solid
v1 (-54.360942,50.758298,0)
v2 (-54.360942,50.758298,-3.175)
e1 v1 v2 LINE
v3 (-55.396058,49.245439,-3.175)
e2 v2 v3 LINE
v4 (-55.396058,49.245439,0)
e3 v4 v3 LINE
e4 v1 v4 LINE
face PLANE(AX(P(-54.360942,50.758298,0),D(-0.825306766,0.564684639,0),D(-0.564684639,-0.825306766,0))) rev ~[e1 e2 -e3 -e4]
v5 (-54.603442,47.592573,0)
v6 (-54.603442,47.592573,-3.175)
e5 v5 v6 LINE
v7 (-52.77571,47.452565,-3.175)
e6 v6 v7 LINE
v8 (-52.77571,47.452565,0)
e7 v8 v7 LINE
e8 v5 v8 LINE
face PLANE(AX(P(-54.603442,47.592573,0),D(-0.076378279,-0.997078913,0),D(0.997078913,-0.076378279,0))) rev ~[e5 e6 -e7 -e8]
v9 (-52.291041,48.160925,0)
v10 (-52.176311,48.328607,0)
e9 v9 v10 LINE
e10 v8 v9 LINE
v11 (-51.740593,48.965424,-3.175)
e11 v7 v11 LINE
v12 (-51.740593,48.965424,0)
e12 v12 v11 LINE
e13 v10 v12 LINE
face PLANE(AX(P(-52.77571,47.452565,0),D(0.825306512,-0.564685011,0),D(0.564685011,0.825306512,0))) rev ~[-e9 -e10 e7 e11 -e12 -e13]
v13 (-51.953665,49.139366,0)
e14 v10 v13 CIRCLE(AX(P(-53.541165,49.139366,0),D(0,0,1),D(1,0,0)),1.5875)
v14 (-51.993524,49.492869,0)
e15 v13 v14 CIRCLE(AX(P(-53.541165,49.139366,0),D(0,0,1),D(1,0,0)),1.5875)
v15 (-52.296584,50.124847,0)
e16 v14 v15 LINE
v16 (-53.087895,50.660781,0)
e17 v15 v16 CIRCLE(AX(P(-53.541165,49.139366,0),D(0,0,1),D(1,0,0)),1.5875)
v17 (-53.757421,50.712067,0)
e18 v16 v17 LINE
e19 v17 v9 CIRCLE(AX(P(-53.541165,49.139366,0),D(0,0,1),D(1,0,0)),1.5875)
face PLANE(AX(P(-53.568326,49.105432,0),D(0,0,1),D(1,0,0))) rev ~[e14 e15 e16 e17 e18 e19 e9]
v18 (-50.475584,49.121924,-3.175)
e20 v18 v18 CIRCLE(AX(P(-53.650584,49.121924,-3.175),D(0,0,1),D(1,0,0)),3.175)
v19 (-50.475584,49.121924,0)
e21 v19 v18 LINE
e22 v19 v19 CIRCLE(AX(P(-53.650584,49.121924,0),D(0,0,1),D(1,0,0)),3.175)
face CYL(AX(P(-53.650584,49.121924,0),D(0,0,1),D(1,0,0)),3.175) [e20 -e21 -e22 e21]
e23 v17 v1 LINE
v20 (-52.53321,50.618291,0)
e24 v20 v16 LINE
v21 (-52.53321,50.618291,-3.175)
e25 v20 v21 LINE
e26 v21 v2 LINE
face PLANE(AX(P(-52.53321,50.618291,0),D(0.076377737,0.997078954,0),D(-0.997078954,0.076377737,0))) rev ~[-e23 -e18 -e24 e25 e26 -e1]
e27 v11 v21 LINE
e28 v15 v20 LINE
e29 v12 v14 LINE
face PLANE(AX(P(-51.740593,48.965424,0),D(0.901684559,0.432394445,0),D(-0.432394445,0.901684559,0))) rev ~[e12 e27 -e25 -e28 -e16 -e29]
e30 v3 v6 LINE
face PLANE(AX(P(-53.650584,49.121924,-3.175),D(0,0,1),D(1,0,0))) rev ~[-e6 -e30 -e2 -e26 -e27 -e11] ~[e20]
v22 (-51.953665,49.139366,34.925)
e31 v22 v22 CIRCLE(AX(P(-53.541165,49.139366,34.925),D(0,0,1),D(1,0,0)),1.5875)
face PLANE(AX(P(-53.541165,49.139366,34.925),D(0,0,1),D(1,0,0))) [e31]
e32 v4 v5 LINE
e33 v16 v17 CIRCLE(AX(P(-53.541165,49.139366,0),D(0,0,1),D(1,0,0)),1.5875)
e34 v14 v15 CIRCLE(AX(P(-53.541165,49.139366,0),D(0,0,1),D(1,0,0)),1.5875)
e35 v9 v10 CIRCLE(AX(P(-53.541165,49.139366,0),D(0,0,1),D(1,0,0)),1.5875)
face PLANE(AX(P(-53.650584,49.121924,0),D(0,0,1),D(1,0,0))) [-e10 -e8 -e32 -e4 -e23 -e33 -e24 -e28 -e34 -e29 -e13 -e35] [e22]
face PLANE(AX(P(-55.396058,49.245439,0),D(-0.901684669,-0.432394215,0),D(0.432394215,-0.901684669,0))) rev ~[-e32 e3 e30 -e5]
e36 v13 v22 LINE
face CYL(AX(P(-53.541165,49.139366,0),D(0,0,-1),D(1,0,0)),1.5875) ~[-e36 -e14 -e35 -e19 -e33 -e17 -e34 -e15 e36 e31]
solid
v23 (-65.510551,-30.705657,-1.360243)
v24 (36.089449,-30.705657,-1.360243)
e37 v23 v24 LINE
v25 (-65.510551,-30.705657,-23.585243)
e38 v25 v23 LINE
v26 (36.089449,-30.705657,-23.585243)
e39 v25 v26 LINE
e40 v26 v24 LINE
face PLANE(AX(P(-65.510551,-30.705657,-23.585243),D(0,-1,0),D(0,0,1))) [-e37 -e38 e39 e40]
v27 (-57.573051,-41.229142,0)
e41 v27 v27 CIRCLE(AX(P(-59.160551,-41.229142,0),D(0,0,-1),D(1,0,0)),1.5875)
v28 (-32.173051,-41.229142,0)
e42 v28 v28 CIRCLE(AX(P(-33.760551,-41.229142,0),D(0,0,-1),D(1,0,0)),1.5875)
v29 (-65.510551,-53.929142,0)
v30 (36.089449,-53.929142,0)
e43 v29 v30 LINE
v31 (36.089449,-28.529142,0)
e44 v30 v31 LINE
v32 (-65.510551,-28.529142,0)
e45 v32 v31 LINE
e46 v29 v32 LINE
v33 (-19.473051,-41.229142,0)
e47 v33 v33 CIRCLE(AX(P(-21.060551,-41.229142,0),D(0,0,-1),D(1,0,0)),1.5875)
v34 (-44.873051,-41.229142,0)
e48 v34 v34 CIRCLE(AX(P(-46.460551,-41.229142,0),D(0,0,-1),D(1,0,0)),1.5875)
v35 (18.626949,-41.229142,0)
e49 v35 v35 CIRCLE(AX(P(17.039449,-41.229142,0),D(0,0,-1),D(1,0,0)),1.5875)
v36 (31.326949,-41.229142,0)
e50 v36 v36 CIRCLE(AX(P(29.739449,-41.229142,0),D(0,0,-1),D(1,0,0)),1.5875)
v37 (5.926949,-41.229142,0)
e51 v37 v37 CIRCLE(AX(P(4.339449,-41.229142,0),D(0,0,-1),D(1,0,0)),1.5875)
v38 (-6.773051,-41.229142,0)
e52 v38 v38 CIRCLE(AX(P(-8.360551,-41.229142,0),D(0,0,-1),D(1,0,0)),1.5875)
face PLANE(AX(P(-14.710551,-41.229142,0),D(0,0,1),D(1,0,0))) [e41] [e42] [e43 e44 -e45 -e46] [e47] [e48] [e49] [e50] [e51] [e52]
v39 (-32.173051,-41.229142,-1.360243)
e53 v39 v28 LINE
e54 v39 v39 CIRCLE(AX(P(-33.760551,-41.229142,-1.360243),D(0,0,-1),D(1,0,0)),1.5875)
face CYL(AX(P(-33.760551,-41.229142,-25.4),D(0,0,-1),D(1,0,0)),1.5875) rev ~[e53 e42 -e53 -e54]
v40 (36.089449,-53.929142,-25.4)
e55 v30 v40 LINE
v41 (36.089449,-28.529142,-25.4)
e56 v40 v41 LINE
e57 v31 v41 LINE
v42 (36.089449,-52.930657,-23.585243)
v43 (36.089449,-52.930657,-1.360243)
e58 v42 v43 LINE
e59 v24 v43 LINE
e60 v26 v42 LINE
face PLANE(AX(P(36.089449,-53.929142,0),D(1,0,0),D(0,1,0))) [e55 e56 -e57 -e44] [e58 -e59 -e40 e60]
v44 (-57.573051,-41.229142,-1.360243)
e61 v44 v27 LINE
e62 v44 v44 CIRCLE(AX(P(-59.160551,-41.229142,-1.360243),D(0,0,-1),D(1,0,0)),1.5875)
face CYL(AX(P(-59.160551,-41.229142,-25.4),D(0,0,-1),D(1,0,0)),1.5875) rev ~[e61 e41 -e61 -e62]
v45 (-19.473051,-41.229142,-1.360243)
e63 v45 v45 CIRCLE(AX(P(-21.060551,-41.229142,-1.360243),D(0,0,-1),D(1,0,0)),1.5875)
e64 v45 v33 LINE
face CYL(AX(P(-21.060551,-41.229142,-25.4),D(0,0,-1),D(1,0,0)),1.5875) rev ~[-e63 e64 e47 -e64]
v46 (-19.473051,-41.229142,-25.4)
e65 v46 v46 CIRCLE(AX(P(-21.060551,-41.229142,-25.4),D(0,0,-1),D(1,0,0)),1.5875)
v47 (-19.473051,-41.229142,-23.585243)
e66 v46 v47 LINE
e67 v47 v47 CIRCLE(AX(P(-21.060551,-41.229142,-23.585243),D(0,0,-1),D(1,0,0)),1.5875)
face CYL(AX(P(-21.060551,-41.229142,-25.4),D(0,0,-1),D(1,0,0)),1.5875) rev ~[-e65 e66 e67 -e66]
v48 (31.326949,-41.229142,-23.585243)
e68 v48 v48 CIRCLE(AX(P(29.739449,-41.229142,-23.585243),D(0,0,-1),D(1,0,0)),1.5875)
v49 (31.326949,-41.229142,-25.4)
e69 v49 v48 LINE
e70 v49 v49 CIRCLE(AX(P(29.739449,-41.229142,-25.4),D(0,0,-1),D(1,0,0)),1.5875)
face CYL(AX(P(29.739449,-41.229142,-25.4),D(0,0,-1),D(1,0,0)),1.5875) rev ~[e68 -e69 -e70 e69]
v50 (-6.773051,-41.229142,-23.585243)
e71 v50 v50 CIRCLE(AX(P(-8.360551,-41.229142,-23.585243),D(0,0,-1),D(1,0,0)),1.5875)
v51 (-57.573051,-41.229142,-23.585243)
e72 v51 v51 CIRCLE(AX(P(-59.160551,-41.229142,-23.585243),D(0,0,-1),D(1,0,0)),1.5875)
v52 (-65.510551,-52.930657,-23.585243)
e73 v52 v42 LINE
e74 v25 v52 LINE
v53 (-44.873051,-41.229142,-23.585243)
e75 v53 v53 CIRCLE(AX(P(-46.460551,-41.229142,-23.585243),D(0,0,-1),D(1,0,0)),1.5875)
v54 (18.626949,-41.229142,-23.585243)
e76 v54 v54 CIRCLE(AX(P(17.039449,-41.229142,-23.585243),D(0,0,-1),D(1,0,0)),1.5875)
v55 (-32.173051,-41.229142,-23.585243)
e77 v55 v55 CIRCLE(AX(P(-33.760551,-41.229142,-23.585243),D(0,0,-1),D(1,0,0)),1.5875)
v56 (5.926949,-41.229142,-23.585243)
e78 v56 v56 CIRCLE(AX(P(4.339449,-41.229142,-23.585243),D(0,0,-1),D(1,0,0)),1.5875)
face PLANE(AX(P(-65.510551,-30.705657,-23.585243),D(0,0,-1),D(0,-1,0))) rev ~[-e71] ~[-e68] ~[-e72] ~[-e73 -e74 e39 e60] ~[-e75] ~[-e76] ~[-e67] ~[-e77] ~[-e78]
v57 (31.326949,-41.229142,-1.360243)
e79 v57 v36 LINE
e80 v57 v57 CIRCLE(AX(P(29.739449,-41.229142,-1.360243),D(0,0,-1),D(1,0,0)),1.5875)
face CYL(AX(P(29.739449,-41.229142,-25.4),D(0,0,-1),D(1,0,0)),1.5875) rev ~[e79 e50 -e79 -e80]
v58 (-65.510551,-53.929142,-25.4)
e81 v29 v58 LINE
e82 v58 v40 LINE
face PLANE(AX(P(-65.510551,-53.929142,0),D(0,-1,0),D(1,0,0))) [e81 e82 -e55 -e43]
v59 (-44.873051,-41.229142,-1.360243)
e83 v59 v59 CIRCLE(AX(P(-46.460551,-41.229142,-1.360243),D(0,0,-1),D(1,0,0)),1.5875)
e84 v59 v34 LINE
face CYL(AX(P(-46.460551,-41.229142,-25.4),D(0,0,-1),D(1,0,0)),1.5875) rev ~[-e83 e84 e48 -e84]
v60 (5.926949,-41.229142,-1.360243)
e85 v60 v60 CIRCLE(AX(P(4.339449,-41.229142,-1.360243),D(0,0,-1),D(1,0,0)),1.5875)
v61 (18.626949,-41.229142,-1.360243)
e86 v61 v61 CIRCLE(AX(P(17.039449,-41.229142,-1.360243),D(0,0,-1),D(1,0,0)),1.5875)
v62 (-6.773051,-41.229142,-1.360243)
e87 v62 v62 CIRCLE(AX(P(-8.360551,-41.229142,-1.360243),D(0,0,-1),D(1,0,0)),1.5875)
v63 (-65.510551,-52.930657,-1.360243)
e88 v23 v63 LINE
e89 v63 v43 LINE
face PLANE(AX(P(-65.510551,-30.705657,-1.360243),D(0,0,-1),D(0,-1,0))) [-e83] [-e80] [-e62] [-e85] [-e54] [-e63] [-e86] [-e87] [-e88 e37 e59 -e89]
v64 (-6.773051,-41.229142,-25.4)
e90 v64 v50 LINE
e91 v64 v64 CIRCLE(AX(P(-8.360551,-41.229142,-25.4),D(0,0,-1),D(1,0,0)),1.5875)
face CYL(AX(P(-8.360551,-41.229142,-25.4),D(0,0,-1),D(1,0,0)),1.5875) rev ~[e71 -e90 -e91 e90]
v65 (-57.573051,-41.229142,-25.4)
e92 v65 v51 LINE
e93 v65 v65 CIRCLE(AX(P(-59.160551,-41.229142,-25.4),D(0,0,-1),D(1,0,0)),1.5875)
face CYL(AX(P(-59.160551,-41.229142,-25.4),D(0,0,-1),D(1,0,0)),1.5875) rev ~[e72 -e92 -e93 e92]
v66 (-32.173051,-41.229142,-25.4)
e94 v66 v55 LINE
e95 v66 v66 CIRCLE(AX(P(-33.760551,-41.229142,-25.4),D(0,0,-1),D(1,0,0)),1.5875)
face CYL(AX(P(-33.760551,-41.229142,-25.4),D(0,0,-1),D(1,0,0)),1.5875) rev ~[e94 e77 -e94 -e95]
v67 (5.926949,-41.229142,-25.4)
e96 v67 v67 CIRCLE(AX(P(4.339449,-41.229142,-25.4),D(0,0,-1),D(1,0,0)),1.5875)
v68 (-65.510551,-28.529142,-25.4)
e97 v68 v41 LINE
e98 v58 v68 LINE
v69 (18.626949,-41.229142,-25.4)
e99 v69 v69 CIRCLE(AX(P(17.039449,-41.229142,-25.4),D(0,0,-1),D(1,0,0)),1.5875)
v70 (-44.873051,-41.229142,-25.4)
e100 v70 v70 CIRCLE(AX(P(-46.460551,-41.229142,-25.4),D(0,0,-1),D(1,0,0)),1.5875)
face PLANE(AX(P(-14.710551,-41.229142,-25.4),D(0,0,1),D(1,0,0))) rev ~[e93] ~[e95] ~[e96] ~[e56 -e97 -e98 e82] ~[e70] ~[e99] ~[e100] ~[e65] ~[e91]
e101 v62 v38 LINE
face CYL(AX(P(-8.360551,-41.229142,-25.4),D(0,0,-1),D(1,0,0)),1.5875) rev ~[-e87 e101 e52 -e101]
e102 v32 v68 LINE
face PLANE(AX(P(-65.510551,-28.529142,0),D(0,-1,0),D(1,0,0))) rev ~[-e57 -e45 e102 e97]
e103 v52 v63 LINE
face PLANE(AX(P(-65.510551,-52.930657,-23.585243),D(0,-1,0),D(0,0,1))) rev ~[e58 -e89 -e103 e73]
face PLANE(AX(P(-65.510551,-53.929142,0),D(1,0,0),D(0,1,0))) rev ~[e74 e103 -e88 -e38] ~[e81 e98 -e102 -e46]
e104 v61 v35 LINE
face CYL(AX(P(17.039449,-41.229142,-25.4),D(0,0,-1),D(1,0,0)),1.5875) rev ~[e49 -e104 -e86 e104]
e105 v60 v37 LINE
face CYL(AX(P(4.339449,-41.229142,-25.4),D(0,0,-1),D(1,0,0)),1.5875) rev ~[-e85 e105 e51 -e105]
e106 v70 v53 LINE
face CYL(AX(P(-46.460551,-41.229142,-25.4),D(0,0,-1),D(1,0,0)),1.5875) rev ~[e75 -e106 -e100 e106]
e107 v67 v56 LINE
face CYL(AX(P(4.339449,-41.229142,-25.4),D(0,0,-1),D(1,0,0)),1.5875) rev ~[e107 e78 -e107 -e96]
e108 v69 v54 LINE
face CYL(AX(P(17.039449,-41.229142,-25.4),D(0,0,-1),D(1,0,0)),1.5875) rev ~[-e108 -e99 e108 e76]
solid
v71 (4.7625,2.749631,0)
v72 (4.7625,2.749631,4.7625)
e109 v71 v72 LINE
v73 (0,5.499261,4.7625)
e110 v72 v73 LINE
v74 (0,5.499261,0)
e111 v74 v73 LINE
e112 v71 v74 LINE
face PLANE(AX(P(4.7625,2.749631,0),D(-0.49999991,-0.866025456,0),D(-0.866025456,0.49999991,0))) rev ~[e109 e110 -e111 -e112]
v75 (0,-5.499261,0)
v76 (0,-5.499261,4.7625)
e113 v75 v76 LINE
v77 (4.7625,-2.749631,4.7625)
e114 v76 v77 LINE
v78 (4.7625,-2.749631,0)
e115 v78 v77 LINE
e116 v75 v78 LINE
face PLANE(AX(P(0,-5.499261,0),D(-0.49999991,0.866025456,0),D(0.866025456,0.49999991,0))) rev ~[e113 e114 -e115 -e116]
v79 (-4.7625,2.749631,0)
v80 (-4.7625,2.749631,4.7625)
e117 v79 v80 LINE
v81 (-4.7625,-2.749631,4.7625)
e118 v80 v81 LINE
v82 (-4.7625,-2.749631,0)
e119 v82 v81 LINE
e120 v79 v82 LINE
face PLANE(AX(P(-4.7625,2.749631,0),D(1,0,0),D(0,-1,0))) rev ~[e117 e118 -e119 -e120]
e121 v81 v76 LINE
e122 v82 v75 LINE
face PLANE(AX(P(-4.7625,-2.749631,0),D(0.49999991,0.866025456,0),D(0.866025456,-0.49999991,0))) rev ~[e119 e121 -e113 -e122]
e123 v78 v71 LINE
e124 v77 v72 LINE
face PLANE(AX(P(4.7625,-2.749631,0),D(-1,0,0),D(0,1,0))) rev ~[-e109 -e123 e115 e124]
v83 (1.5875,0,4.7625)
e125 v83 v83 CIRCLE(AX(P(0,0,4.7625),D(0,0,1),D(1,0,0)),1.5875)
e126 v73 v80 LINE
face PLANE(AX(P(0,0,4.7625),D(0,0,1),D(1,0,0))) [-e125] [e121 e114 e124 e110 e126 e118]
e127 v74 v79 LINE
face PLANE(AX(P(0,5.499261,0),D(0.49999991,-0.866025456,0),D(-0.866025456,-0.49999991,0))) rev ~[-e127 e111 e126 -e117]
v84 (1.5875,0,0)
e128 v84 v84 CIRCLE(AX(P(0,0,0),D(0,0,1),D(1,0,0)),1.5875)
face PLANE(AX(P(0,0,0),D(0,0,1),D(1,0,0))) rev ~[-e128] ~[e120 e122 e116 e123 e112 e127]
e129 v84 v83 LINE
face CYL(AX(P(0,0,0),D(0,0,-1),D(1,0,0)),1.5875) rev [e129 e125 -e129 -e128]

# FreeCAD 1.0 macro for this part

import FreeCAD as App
import Part
import Sketcher
from FreeCAD import Vector
Q = App.Units.Quantity

doc = App.newDocument("Part")
body = doc.addObject("PartDesign::Body", "Body")

# Sketch on XY plane
sketch1 = doc.addObject("Sketcher::SketchObject", "Sketch")
body.addObject(sketch1)
sketch1.AttachmentSupport = (doc.XY_Plane, [""])
sketch1.MapMode = "FlatFace"
sketch1.addGeometry([
    Part.LineSegment(Vector(-4.8, 2.7, 0), Vector(-4.8, -2.7, 0)),  # 0
    Part.LineSegment(Vector(-4.8, -2.7, 0), Vector(0, -5.5, 0)),  # 1
    Part.LineSegment(Vector(0, -5.5, 0), Vector(4.8, -2.7, 0)),  # 2
    Part.LineSegment(Vector(4.8, -2.7, 0), Vector(4.8, 2.7, 0)),  # 3
    Part.LineSegment(Vector(4.8, 2.7, 0), Vector(0, 5.5, 0)),  # 4
    Part.LineSegment(Vector(0, 5.5, 0), Vector(-4.8, 2.7, 0)),  # 5
    Part.Circle(Vector(0, 0, 0), Vector(0, 0, 1), 1.6),  # 6
], False)
sketch1.addConstraint([
    Sketcher.Constraint("Coincident", 0, 2, 1, 1),
    Sketcher.Constraint("Coincident", 1, 2, 2, 1),
    Sketcher.Constraint("Coincident", 2, 2, 3, 1),
    Sketcher.Constraint("Coincident", 3, 2, 4, 1),
    Sketcher.Constraint("Coincident", 4, 2, 5, 1),
    Sketcher.Constraint("Coincident", 5, 2, 0, 1),
    Sketcher.Constraint("Vertical", 0),
    Sketcher.Constraint("Vertical", 3),
    Sketcher.Constraint("Coincident", 6, 3, -1, 1),
    Sketcher.Constraint("Symmetric", 0, 2, 3, 2, -1, 1),
    Sketcher.Constraint("Symmetric", 1, 2, 4, 2, -1, 1),
    Sketcher.Constraint("PointOnObject", 1, 2, -2),
    Sketcher.Constraint("Parallel", 2, 5),
    Sketcher.Constraint("Horizontal", 0, 2, 2, 2),
    Sketcher.Constraint("Diameter", 6, Q("0.125 in")),
    Sketcher.Constraint("Angle", 1, Q("-29.999994 deg")),
    Sketcher.Constraint("DistanceX", 0, 2, -1, 1, Q("0.1875 in")),
    Sketcher.Constraint("DistanceY", 0, 2, 0, 1, Q("5.499262 mm")),
])
pad1 = doc.addObject("PartDesign::Pad", "Pad")
body.addObject(pad1)
pad1.Profile = sketch1
pad1.Length = Q("0.1875 in")
body2 = doc.addObject("PartDesign::Body", "Body001")

# Sketch on XY plane
sketch2 = doc.addObject("Sketcher::SketchObject", "Sketch001")
body2.addObject(sketch2)
sketch2.AttachmentSupport = (doc.getObject("XY_Plane001"), [""])
sketch2.MapMode = "FlatFace"
sketch2.addGeometry(Part.Circle(Vector(-53.5, 49.1, 0), Vector(0, 0, 1), 1.6), False)
sketch2.addConstraint([
    Sketcher.Constraint("Diameter", 0, Q("0.125 in")),
    Sketcher.Constraint("DistanceX", 0, 3, -1, 1, Q("53.541165 mm")),
    Sketcher.Constraint("DistanceY", -1, 1, 0, 3, Q("49.139366 mm")),
])
pad2 = doc.addObject("PartDesign::Pad", "Pad001")
body2.addObject(pad2)
pad2.Profile = sketch2
pad2.Length = Q("1.375 in")

# Sketch on XY plane
sketch3 = doc.addObject("Sketcher::SketchObject", "Sketch002")
body2.addObject(sketch3)
sketch3.AttachmentSupport = (doc.getObject("XY_Plane001"), [""])
sketch3.MapMode = "FlatFace"
sketch3.addGeometry(Part.Circle(Vector(-53.7, 49.1, 0), Vector(0, 0, 1), 3.2), False)
sketch3.addConstraint([
    Sketcher.Constraint("Diameter", 0, Q("0.25 in")),
    Sketcher.Constraint("DistanceX", 0, 3, -1, 1, Q("53.650584 mm")),
    Sketcher.Constraint("DistanceY", -1, 1, 0, 3, Q("49.121924 mm")),
])
pad3 = doc.addObject("PartDesign::Pad", "Pad002")
body2.addObject(pad3)
pad3.Profile = sketch3
pad3.Length = Q("0.125 in")
pad3.Reversed = True

# Sketch on XY plane
sketch4 = doc.addObject("Sketcher::SketchObject", "Sketch003")
body2.addObject(sketch4)
sketch4.AttachmentSupport = (doc.getObject("XY_Plane001"), [""])
sketch4.MapMode = "FlatFace"
sketch4.addGeometry([
    Part.LineSegment(Vector(-54.4, 50.8, 0), Vector(-55.4, 49.2, 0)),  # 0
    Part.LineSegment(Vector(-55.4, 49.2, 0), Vector(-54.6, 47.6, 0)),  # 1
    Part.LineSegment(Vector(-54.6, 47.6, 0), Vector(-52.8, 47.5, 0)),  # 2
    Part.LineSegment(Vector(-52.8, 47.5, 0), Vector(-51.7, 49, 0)),  # 3
    Part.LineSegment(Vector(-51.7, 49, 0), Vector(-52.5, 50.6, 0)),  # 4
    Part.LineSegment(Vector(-52.5, 50.6, 0), Vector(-54.4, 50.8, 0)),  # 5
], False)
sketch4.addConstraint([
    Sketcher.Constraint("Coincident", 0, 2, 1, 1),
    Sketcher.Constraint("Coincident", 1, 2, 2, 1),
    Sketcher.Constraint("Coincident", 2, 2, 3, 1),
    Sketcher.Constraint("Coincident", 3, 2, 4, 1),
    Sketcher.Constraint("Coincident", 4, 2, 5, 1),
    Sketcher.Constraint("Coincident", 5, 2, 0, 1),
    Sketcher.Constraint("Parallel", 0, 3),
    Sketcher.Constraint("Parallel", 1, 4),
    Sketcher.Constraint("Parallel", 2, 5),
    Sketcher.Constraint("Equal", 0, 1),
    Sketcher.Constraint("Equal", 1, 2),
    Sketcher.Constraint("Equal", 2, 3),
    Sketcher.Constraint("DistanceY", -1, 1, 5, 2, Q("50.758298 mm")),
    Sketcher.Constraint("DistanceX", 2, 2, 4, 2, Q("0.2425 mm")),
    Sketcher.Constraint("DistanceY", -1, 1, 0, 2, Q("49.245439 mm")),
    Sketcher.Constraint("DistanceX", 2, 2, -1, 1, Q("52.77571 mm")),
    Sketcher.Constraint("DistanceY", -1, 1, 4, 2, Q("50.618291 mm")),
    Sketcher.Constraint("DistanceX", 1, 2, 3, 2, Q("2.862849 mm")),
])
pocket1 = doc.addObject("PartDesign::Pocket", "Pocket")
body2.addObject(pocket1)
pocket1.Profile = sketch4
pocket1.Length = Q("0.125 in")
body3 = doc.addObject("PartDesign::Body", "Body002")

# Sketch on XY plane
sketch5 = doc.addObject("Sketcher::SketchObject", "Sketch004")
body3.addObject(sketch5)
sketch5.AttachmentSupport = (doc.getObject("XY_Plane002"), [""])
sketch5.MapMode = "FlatFace"
sketch5.addGeometry([
    Part.LineSegment(Vector(-66, -29, 0), Vector(-66, -54, 0)),
    Part.LineSegment(Vector(-66, -54, 0), Vector(36, -54, 0)),
    Part.LineSegment(Vector(36, -54, 0), Vector(36, -29, 0)),
    Part.LineSegment(Vector(36, -29, 0), Vector(-66, -29, 0)),
], False)
sketch5.addConstraint([
    Sketcher.Constraint("Coincident", 0, 2, 1, 1),
    Sketcher.Constraint("Coincident", 1, 2, 2, 1),
    Sketcher.Constraint("Coincident", 2, 2, 3, 1),
    Sketcher.Constraint("Coincident", 3, 2, 0, 1),
    Sketcher.Constraint("Vertical", 0),
    Sketcher.Constraint("Horizontal", 1),
    Sketcher.Constraint("Vertical", 2),
    Sketcher.Constraint("Horizontal", 3),
    Sketcher.Constraint("DistanceX", 1, 1, 1, 2, Q("4 in")),
    Sketcher.Constraint("DistanceY", 0, 2, 0, 1, Q("1 in")),
    Sketcher.Constraint("DistanceX", 0, 2, -1, 1, Q("65.510551 mm")),
    Sketcher.Constraint("DistanceY", 2, 2, -1, 1, Q("28.529142 mm")),
])
pad4 = doc.addObject("PartDesign::Pad", "Pad003")
body3.addObject(pad4)
pad4.Profile = sketch5
pad4.Length = Q("1 in")
pad4.Reversed = True

# Sketch on YZ plane
sketch6 = doc.addObject("Sketcher::SketchObject", "Sketch005")
body3.addObject(sketch6)
sketch6.AttachmentSupport = (doc.getObject("YZ_Plane002"), [""])
sketch6.MapMode = "FlatFace"
sketch6.AttachmentOffset = App.Placement(Vector(0, 0, -65.510551), App.Rotation())
sketch6.addGeometry([
    Part.LineSegment(Vector(-31, -1, 0), Vector(-31, -24, 0)),
    Part.LineSegment(Vector(-31, -24, 0), Vector(-53, -24, 0)),
    Part.LineSegment(Vector(-53, -24, 0), Vector(-53, -1, 0)),
    Part.LineSegment(Vector(-53, -1, 0), Vector(-31, -1, 0)),
], False)
sketch6.addConstraint([
    Sketcher.Constraint("Coincident", 0, 2, 1, 1),
    Sketcher.Constraint("Coincident", 1, 2, 2, 1),
    Sketcher.Constraint("Coincident", 2, 2, 3, 1),
    Sketcher.Constraint("Coincident", 3, 2, 0, 1),
    Sketcher.Constraint("Vertical", 0),
    Sketcher.Constraint("Horizontal", 1),
    Sketcher.Constraint("Vertical", 2),
    Sketcher.Constraint("Horizontal", 3),
    Sketcher.Constraint("Equal", 3, 0),
    Sketcher.Constraint("DistanceX", 1, 2, 1, 1, Q("0.875 in")),
    Sketcher.Constraint("DistanceX", 0, 2, -1, 1, Q("30.705657 mm")),
    Sketcher.Constraint("DistanceY", 0, 2, -1, 1, Q("23.585243 mm")),
])
pocket2 = doc.addObject("PartDesign::Pocket", "Pocket001")
body3.addObject(pocket2)
pocket2.Profile = sketch6
pocket2.Length = Q("4 in")
pocket2.Reversed = True

# Sketch on XY plane
sketch7 = doc.addObject("Sketcher::SketchObject", "Sketch006")
body3.addObject(sketch7)
sketch7.AttachmentSupport = (doc.getObject("XY_Plane002"), [""])
sketch7.MapMode = "FlatFace"
sketch7.AttachmentOffset = App.Placement(Vector(0, 0, -1 * 25.4), App.Rotation())
sketch7.addGeometry([
    Part.Circle(Vector(-59.2, -41.2, 0), Vector(0, 0, 1), 1.6),  # 0
    Part.Circle(Vector(-46.5, -41.2, 0), Vector(0, 0, 1), 1.6),  # 1
    Part.Circle(Vector(-33.8, -41.2, 0), Vector(0, 0, 1), 1.6),  # 2
    Part.Circle(Vector(-21.1, -41.2, 0), Vector(0, 0, 1), 1.6),  # 3
    Part.Circle(Vector(-8.4, -41.2, 0), Vector(0, 0, 1), 1.6),  # 4
    Part.Circle(Vector(4.3, -41.2, 0), Vector(0, 0, 1), 1.6),  # 5
    Part.Circle(Vector(17, -41.2, 0), Vector(0, 0, 1), 1.6),  # 6
    Part.Circle(Vector(29.7, -41.2, 0), Vector(0, 0, 1), 1.6),  # 7
], False)
sketch7.addConstraint([
    Sketcher.Constraint("Equal", 0, 1),
    Sketcher.Constraint("Equal", 1, 2),
    Sketcher.Constraint("Equal", 2, 3),
    Sketcher.Constraint("Equal", 3, 4),
    Sketcher.Constraint("Equal", 4, 5),
    Sketcher.Constraint("Equal", 5, 6),
    Sketcher.Constraint("Equal", 6, 7),
    Sketcher.Constraint("Horizontal", 0, 3, 1, 3),
    Sketcher.Constraint("Horizontal", 1, 3, 2, 3),
    Sketcher.Constraint("Horizontal", 2, 3, 3, 3),
    Sketcher.Constraint("Horizontal", 3, 3, 4, 3),
    Sketcher.Constraint("Horizontal", 4, 3, 5, 3),
    Sketcher.Constraint("Horizontal", 5, 3, 6, 3),
    Sketcher.Constraint("Horizontal", 6, 3, 7, 3),
    Sketcher.Constraint("Diameter", 0, Q("0.125 in")),
    Sketcher.Constraint("DistanceX", 0, 3, 2, 3, Q("1 in")),
    Sketcher.Constraint("DistanceX", 1, 3, 3, 3, Q("1 in")),
    Sketcher.Constraint("DistanceX", 2, 3, 4, 3, Q("1 in")),
    Sketcher.Constraint("DistanceX", 3, 3, 5, 3, Q("1 in")),
    Sketcher.Constraint("DistanceX", 4, 3, 6, 3, Q("1 in")),
    Sketcher.Constraint("DistanceX", 5, 3, 7, 3, Q("1 in")),
    Sketcher.Constraint("DistanceX", 0, 3, 1, 3, Q("0.5 in")),
    Sketcher.Constraint("DistanceX", 0, 3, -1, 1, Q("59.160551 mm")),
    Sketcher.Constraint("DistanceY", 0, 3, -1, 1, Q("41.229142 mm")),
])
pocket3 = doc.addObject("PartDesign::Pocket", "Pocket002")
body3.addObject(pocket3)
pocket3.Profile = sketch7
pocket3.Length = Q("1 in")
pocket3.Reversed = True

doc.recompute()
